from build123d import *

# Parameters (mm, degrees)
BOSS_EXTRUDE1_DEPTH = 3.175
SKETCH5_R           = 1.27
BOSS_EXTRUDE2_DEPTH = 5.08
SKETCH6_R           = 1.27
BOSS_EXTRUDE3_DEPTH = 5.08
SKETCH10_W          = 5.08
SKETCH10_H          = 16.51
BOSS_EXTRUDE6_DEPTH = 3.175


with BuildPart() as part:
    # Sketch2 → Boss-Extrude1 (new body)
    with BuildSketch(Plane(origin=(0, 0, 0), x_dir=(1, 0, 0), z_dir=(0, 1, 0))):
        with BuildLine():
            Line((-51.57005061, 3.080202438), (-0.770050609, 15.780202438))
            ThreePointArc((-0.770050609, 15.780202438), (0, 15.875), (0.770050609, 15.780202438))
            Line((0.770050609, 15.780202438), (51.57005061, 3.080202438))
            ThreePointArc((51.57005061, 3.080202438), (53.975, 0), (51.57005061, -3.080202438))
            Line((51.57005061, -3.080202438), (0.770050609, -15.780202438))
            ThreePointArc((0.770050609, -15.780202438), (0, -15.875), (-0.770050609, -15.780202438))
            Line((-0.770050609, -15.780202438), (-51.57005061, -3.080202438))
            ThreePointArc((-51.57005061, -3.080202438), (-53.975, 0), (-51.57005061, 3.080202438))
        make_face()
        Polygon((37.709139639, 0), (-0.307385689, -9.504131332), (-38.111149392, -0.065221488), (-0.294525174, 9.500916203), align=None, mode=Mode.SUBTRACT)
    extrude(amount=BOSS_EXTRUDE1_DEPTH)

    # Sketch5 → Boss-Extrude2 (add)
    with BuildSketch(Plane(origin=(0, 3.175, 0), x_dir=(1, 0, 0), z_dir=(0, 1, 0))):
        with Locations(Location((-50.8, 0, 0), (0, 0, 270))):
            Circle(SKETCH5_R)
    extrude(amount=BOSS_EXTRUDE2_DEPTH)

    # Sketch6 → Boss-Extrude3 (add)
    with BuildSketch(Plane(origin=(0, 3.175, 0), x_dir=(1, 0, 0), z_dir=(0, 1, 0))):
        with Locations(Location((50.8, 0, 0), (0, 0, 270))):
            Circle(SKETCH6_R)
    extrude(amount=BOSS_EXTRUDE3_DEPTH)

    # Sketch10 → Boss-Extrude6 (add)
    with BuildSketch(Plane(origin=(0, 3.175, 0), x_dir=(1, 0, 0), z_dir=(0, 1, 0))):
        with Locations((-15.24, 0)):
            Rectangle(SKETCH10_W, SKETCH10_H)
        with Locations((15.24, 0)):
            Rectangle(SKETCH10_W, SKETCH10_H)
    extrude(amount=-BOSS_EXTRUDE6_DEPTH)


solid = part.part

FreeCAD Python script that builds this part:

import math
import FreeCAD as App
import Part
import Sketcher

V = App.Vector
Q = App.Units.Quantity


def add_polygon(sketch, points):
    """Adds a closed chain of lines whose ends are joined by coincident constraints."""
    first, n = sketch.GeometryCount, len(points)
    for a, b in zip(points, points[1:] + points[:1]):
        sketch.addGeometry(Part.LineSegment(App.Vector(*a, 0), App.Vector(*b, 0)), False)
    for i in range(n):
        sketch.addConstraint(Sketcher.Constraint("Coincident", first + i, 2, first + (i + 1) % n, 1))

doc = App.newDocument("Part")
body = doc.addObject("PartDesign::Body", "Body")

sketch1 = body.newObject("Sketcher::SketchObject", "Sketch")
sketch1.AttachmentSupport = (doc.getObject("XZ_Plane"), [""])
sketch1.MapMode = "FlatFace"
sketch1.addGeometry(Part.LineSegment(V(-0.8, -15.8, 0), V(-51.6, -3.1, 0)), False)
sketch1.addGeometry(Part.ArcOfCircle(Part.Circle(V(-50.8, 0, 0), V(0, 0, 1), 3.2), math.radians(104), math.radians(256)), False)
sketch1.addGeometry(Part.LineSegment(V(-51.6, 3.1, 0), V(-0.8, 15.8, 0)), False)
sketch1.addGeometry(Part.ArcOfCircle(Part.Circle(V(0, 12.7, 0), V(0, 0, 1), 3.2), math.radians(76), math.radians(104)), False)
sketch1.addGeometry(Part.LineSegment(V(0.8, 15.8, 0), V(51.6, 3.1, 0)), False)
sketch1.addGeometry(Part.ArcOfCircle(Part.Circle(V(50.8, 0, 0), V(0, 0, 1), 3.2), math.radians(-76), math.radians(76)), False)
sketch1.addGeometry(Part.LineSegment(V(51.6, -3.1, 0), V(0.8, -15.8, 0)), False)
sketch1.addGeometry(Part.ArcOfCircle(Part.Circle(V(0, -12.7, 0), V(0, 0, 1), 3.2), math.radians(-104), math.radians(-76)), False)
add_polygon(sketch1, [(37.7, 0), (-0.3, 9.5), (-38.1, 0.1), (-0.3, -9.5)])
sketch1.addConstraint(Sketcher.Constraint("Tangent", 0, 2, 1, 2))
sketch1.addConstraint(Sketcher.Constraint("Tangent", 1, 1, 2, 1))
sketch1.addConstraint(Sketcher.Constraint("Tangent", 2, 2, 3, 2))
sketch1.addConstraint(Sketcher.Constraint("Tangent", 3, 1, 4, 1))
sketch1.addConstraint(Sketcher.Constraint("Tangent", 4, 2, 5, 2))
sketch1.addConstraint(Sketcher.Constraint("Tangent", 5, 1, 6, 1))
sketch1.addConstraint(Sketcher.Constraint("Tangent", 6, 2, 7, 2))
sketch1.addConstraint(Sketcher.Constraint("Tangent", 7, 1, 0, 1))
sketch1.addConstraint(Sketcher.Constraint("Equal", 1, 3))
sketch1.addConstraint(Sketcher.Constraint("Equal", 3, 5))
sketch1.addConstraint(Sketcher.Constraint("Equal", 5, 7))
sketch1.addConstraint(Sketcher.Constraint("Symmetric", 1, 3, 5, 3, -1, 1))
sketch1.addConstraint(Sketcher.Constraint("Symmetric", 3, 3, 7, 3, -1, 1))
sketch1.addConstraint(Sketcher.Constraint("Symmetric", 2, 2, 3, 1, -2))
sketch1.addConstraint(Sketcher.Constraint("PointOnObject", 11, 2, -1))
sketch1.addConstraint(Sketcher.Constraint("Parallel", 4, 8))
sketch1.addConstraint(Sketcher.Constraint("Parallel", 6, 11))
sketch1.addConstraint(Sketcher.Constraint("DistanceX", 1, 3, -1, 1, Q("2 in")))
sketch1.addConstraint(Sketcher.Constraint("Radius", 1, Q("0.125 in")))
sketch1.addConstraint(Sketcher.Constraint("DistanceY", 7, 3, 3, 3, Q("1 in")))
sketch1.addConstraint(Sketcher.Constraint("DistanceY", 9, 2, 1, 1, Q("0.1187 in")))
sketch1.addConstraint(Sketcher.Constraint("DistanceX", 1, 1, 9, 2, 13.458901))
sketch1.addConstraint(Sketcher.Constraint("Distance", 9, 38.964311))
sketch1.addConstraint(Sketcher.Constraint("Distance", 11, 39.173281))
sketch1.addConstraint(Sketcher.Constraint("DistanceY", -1, 1, 8, 2, 9.504131))
pad1 = body.newObject("PartDesign::Pad", "Pad")
pad1.Profile = sketch1
pad1.Length = Q("0.125 in")
pad1.Reversed = True

sketch2 = body.newObject("Sketcher::SketchObject", "Sketch001")
sketch2.AttachmentSupport = (doc.getObject("XZ_Plane"), [""])
sketch2.MapMode = "FlatFace"
sketch2.AttachmentOffset = App.Placement(V(0, 0, -0.125 * 25.4), App.Rotation())
sketch2.addGeometry(Part.Circle(V(-50.8, 0, 0), V(0, 0, 1), 1.3), False)
sketch2.addConstraint(Sketcher.Constraint("PointOnObject", 0, 3, -1))
sketch2.addConstraint(Sketcher.Constraint("Diameter", 0, Q("0.1 in")))
sketch2.addConstraint(Sketcher.Constraint("DistanceX", 0, 3, -1, 1, Q("2 in")))
pad2 = body.newObject("PartDesign::Pad", "Pad001")
pad2.Profile = sketch2
pad2.Length = Q("0.2 in")
pad2.Reversed = True

sketch3 = body.newObject("Sketcher::SketchObject", "Sketch002")
sketch3.AttachmentSupport = (doc.getObject("XZ_Plane"), [""])
sketch3.MapMode = "FlatFace"
sketch3.AttachmentOffset = App.Placement(V(0, 0, -0.125 * 25.4), App.Rotation())
sketch3.addGeometry(Part.Circle(V(50.8, 0, 0), V(0, 0, 1), 1.3), False)
sketch3.addConstraint(Sketcher.Constraint("PointOnObject", 0, 3, -1))
sketch3.addConstraint(Sketcher.Constraint("Diameter", 0, Q("0.1 in")))
sketch3.addConstraint(Sketcher.Constraint("DistanceX", -1, 1, 0, 3, Q("2 in")))
pad3 = body.newObject("PartDesign::Pad", "Pad002")
pad3.Profile = sketch3
pad3.Length = Q("0.2 in")
pad3.Reversed = True

sketch4 = body.newObject("Sketcher::SketchObject", "Sketch003")
sketch4.AttachmentSupport = (doc.getObject("XZ_Plane"), [""])
sketch4.MapMode = "FlatFace"
sketch4.AttachmentOffset = App.Placement(V(0, 0, -0.125 * 25.4), App.Rotation())
add_polygon(sketch4, [(-18, -8), (-18, 8), (-13, 8), (-13, -8)])
add_polygon(sketch4, [(13, -8), (13, 8), (18, 8), (18, -8)])
sketch4.addConstraint(Sketcher.Constraint("Vertical", 0))
sketch4.addConstraint(Sketcher.Constraint("Horizontal", 1))
sketch4.addConstraint(Sketcher.Constraint("Vertical", 2))
sketch4.addConstraint(Sketcher.Constraint("Horizontal", 3))
sketch4.addConstraint(Sketcher.Constraint("Vertical", 4))
sketch4.addConstraint(Sketcher.Constraint("Horizontal", 5))
sketch4.addConstraint(Sketcher.Constraint("Vertical", 6))
sketch4.addConstraint(Sketcher.Constraint("Horizontal", 7))
sketch4.addConstraint(Sketcher.Constraint("Symmetric", 2, 2, 4, 2, -1, 1))
sketch4.addConstraint(Sketcher.Constraint("Symmetric", 0, 2, 6, 2, -1, 1))
sketch4.addConstraint(Sketcher.Constraint("Horizontal", 1, 2, 4, 2))
sketch4.addConstraint(Sketcher.Constraint("DistanceX", 1, 1, 1, 2, Q("0.2 in")))
sketch4.addConstraint(Sketcher.Constraint("DistanceX", 1, 2, 4, 2, Q("1 in")))
sketch4.addConstraint(Sketcher.Constraint("DistanceY", 0, 1, 0, 2, Q("0.65 in")))
pad4 = body.newObject("PartDesign::Pad", "Pad003")
pad4.Profile = sketch4
pad4.Length = Q("0.125 in")

doc.recompute()
